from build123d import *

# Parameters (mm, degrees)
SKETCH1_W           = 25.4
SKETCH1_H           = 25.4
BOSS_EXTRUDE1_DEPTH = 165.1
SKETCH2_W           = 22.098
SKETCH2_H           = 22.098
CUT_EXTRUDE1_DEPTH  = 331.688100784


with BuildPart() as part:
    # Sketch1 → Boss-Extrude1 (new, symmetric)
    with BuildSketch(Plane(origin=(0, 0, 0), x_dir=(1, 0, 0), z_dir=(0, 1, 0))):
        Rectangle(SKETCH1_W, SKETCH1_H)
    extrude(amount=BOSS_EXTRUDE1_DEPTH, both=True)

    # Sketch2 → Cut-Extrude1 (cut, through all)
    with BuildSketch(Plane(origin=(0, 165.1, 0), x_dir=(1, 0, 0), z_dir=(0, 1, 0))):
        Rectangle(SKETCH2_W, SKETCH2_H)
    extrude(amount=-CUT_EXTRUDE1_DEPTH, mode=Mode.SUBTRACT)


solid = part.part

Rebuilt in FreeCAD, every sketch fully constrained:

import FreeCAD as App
import Part
import Sketcher
from FreeCAD import Vector
Q = App.Units.Quantity


def add_polygon(sketch, points):
    """Adds a closed chain of lines whose ends are joined by coincident constraints."""
    first, n = sketch.GeometryCount, len(points)
    for a, b in zip(points, points[1:] + points[:1]):
        sketch.addGeometry(Part.LineSegment(App.Vector(*a, 0), App.Vector(*b, 0)), False)
    for i in range(n):
        sketch.addConstraint(Sketcher.Constraint("Coincident", first + i, 2, first + (i + 1) % n, 1))

doc = App.newDocument("Part")
body = doc.addObject("PartDesign::Body", "Body")

sketch1 = body.newObject("Sketcher::SketchObject", "Sketch")
sketch1.AttachmentSupport = (doc.getObject("XZ_Plane"), [""])
sketch1.MapMode = "FlatFace"
add_polygon(sketch1, [(-13, -13), (-13, 13), (13, 13), (13, -13)])
sketch1.addConstraint(Sketcher.Constraint("Vertical", 0))
sketch1.addConstraint(Sketcher.Constraint("Horizontal", 1))
sketch1.addConstraint(Sketcher.Constraint("Vertical", 2))
sketch1.addConstraint(Sketcher.Constraint("Horizontal", 3))
sketch1.addConstraint(Sketcher.Constraint("Symmetric", 0, 2, 2, 2, -1, 1))
sketch1.addConstraint(Sketcher.Constraint("Equal", 3, 0))
sketch1.addConstraint(Sketcher.Constraint("DistanceX", 1, 1, 1, 2, Q("1 in")))
pad1 = body.newObject("PartDesign::Pad", "Pad")
pad1.Profile = sketch1
pad1.Length = Q("13 in")
pad1.Midplane = True

sketch2 = body.newObject("Sketcher::SketchObject", "Sketch001")
sketch2.AttachmentSupport = (doc.getObject("XZ_Plane"), [""])
sketch2.MapMode = "FlatFace"
sketch2.AttachmentOffset = App.Placement(Vector(0, 0, -6.5 * 25.4), App.Rotation())
add_polygon(sketch2, [(-11, -11), (-11, 11), (11, 11), (11, -11)])
sketch2.addConstraint(Sketcher.Constraint("Vertical", 0))
sketch2.addConstraint(Sketcher.Constraint("Horizontal", 1))
sketch2.addConstraint(Sketcher.Constraint("Vertical", 2))
sketch2.addConstraint(Sketcher.Constraint("Horizontal", 3))
sketch2.addConstraint(Sketcher.Constraint("Symmetric", 0, 2, 2, 2, -1, 1))
sketch2.addConstraint(Sketcher.Constraint("Equal", 3, 0))
sketch2.addConstraint(Sketcher.Constraint("DistanceX", 1, 1, 1, 2, Q("0.87 in")))
pocket1 = body.newObject("PartDesign::Pocket", "Pocket")
pocket1.Profile = sketch2
pocket1.Type = "ThroughAll"
pocket1.Reversed = True

doc.recompute()
